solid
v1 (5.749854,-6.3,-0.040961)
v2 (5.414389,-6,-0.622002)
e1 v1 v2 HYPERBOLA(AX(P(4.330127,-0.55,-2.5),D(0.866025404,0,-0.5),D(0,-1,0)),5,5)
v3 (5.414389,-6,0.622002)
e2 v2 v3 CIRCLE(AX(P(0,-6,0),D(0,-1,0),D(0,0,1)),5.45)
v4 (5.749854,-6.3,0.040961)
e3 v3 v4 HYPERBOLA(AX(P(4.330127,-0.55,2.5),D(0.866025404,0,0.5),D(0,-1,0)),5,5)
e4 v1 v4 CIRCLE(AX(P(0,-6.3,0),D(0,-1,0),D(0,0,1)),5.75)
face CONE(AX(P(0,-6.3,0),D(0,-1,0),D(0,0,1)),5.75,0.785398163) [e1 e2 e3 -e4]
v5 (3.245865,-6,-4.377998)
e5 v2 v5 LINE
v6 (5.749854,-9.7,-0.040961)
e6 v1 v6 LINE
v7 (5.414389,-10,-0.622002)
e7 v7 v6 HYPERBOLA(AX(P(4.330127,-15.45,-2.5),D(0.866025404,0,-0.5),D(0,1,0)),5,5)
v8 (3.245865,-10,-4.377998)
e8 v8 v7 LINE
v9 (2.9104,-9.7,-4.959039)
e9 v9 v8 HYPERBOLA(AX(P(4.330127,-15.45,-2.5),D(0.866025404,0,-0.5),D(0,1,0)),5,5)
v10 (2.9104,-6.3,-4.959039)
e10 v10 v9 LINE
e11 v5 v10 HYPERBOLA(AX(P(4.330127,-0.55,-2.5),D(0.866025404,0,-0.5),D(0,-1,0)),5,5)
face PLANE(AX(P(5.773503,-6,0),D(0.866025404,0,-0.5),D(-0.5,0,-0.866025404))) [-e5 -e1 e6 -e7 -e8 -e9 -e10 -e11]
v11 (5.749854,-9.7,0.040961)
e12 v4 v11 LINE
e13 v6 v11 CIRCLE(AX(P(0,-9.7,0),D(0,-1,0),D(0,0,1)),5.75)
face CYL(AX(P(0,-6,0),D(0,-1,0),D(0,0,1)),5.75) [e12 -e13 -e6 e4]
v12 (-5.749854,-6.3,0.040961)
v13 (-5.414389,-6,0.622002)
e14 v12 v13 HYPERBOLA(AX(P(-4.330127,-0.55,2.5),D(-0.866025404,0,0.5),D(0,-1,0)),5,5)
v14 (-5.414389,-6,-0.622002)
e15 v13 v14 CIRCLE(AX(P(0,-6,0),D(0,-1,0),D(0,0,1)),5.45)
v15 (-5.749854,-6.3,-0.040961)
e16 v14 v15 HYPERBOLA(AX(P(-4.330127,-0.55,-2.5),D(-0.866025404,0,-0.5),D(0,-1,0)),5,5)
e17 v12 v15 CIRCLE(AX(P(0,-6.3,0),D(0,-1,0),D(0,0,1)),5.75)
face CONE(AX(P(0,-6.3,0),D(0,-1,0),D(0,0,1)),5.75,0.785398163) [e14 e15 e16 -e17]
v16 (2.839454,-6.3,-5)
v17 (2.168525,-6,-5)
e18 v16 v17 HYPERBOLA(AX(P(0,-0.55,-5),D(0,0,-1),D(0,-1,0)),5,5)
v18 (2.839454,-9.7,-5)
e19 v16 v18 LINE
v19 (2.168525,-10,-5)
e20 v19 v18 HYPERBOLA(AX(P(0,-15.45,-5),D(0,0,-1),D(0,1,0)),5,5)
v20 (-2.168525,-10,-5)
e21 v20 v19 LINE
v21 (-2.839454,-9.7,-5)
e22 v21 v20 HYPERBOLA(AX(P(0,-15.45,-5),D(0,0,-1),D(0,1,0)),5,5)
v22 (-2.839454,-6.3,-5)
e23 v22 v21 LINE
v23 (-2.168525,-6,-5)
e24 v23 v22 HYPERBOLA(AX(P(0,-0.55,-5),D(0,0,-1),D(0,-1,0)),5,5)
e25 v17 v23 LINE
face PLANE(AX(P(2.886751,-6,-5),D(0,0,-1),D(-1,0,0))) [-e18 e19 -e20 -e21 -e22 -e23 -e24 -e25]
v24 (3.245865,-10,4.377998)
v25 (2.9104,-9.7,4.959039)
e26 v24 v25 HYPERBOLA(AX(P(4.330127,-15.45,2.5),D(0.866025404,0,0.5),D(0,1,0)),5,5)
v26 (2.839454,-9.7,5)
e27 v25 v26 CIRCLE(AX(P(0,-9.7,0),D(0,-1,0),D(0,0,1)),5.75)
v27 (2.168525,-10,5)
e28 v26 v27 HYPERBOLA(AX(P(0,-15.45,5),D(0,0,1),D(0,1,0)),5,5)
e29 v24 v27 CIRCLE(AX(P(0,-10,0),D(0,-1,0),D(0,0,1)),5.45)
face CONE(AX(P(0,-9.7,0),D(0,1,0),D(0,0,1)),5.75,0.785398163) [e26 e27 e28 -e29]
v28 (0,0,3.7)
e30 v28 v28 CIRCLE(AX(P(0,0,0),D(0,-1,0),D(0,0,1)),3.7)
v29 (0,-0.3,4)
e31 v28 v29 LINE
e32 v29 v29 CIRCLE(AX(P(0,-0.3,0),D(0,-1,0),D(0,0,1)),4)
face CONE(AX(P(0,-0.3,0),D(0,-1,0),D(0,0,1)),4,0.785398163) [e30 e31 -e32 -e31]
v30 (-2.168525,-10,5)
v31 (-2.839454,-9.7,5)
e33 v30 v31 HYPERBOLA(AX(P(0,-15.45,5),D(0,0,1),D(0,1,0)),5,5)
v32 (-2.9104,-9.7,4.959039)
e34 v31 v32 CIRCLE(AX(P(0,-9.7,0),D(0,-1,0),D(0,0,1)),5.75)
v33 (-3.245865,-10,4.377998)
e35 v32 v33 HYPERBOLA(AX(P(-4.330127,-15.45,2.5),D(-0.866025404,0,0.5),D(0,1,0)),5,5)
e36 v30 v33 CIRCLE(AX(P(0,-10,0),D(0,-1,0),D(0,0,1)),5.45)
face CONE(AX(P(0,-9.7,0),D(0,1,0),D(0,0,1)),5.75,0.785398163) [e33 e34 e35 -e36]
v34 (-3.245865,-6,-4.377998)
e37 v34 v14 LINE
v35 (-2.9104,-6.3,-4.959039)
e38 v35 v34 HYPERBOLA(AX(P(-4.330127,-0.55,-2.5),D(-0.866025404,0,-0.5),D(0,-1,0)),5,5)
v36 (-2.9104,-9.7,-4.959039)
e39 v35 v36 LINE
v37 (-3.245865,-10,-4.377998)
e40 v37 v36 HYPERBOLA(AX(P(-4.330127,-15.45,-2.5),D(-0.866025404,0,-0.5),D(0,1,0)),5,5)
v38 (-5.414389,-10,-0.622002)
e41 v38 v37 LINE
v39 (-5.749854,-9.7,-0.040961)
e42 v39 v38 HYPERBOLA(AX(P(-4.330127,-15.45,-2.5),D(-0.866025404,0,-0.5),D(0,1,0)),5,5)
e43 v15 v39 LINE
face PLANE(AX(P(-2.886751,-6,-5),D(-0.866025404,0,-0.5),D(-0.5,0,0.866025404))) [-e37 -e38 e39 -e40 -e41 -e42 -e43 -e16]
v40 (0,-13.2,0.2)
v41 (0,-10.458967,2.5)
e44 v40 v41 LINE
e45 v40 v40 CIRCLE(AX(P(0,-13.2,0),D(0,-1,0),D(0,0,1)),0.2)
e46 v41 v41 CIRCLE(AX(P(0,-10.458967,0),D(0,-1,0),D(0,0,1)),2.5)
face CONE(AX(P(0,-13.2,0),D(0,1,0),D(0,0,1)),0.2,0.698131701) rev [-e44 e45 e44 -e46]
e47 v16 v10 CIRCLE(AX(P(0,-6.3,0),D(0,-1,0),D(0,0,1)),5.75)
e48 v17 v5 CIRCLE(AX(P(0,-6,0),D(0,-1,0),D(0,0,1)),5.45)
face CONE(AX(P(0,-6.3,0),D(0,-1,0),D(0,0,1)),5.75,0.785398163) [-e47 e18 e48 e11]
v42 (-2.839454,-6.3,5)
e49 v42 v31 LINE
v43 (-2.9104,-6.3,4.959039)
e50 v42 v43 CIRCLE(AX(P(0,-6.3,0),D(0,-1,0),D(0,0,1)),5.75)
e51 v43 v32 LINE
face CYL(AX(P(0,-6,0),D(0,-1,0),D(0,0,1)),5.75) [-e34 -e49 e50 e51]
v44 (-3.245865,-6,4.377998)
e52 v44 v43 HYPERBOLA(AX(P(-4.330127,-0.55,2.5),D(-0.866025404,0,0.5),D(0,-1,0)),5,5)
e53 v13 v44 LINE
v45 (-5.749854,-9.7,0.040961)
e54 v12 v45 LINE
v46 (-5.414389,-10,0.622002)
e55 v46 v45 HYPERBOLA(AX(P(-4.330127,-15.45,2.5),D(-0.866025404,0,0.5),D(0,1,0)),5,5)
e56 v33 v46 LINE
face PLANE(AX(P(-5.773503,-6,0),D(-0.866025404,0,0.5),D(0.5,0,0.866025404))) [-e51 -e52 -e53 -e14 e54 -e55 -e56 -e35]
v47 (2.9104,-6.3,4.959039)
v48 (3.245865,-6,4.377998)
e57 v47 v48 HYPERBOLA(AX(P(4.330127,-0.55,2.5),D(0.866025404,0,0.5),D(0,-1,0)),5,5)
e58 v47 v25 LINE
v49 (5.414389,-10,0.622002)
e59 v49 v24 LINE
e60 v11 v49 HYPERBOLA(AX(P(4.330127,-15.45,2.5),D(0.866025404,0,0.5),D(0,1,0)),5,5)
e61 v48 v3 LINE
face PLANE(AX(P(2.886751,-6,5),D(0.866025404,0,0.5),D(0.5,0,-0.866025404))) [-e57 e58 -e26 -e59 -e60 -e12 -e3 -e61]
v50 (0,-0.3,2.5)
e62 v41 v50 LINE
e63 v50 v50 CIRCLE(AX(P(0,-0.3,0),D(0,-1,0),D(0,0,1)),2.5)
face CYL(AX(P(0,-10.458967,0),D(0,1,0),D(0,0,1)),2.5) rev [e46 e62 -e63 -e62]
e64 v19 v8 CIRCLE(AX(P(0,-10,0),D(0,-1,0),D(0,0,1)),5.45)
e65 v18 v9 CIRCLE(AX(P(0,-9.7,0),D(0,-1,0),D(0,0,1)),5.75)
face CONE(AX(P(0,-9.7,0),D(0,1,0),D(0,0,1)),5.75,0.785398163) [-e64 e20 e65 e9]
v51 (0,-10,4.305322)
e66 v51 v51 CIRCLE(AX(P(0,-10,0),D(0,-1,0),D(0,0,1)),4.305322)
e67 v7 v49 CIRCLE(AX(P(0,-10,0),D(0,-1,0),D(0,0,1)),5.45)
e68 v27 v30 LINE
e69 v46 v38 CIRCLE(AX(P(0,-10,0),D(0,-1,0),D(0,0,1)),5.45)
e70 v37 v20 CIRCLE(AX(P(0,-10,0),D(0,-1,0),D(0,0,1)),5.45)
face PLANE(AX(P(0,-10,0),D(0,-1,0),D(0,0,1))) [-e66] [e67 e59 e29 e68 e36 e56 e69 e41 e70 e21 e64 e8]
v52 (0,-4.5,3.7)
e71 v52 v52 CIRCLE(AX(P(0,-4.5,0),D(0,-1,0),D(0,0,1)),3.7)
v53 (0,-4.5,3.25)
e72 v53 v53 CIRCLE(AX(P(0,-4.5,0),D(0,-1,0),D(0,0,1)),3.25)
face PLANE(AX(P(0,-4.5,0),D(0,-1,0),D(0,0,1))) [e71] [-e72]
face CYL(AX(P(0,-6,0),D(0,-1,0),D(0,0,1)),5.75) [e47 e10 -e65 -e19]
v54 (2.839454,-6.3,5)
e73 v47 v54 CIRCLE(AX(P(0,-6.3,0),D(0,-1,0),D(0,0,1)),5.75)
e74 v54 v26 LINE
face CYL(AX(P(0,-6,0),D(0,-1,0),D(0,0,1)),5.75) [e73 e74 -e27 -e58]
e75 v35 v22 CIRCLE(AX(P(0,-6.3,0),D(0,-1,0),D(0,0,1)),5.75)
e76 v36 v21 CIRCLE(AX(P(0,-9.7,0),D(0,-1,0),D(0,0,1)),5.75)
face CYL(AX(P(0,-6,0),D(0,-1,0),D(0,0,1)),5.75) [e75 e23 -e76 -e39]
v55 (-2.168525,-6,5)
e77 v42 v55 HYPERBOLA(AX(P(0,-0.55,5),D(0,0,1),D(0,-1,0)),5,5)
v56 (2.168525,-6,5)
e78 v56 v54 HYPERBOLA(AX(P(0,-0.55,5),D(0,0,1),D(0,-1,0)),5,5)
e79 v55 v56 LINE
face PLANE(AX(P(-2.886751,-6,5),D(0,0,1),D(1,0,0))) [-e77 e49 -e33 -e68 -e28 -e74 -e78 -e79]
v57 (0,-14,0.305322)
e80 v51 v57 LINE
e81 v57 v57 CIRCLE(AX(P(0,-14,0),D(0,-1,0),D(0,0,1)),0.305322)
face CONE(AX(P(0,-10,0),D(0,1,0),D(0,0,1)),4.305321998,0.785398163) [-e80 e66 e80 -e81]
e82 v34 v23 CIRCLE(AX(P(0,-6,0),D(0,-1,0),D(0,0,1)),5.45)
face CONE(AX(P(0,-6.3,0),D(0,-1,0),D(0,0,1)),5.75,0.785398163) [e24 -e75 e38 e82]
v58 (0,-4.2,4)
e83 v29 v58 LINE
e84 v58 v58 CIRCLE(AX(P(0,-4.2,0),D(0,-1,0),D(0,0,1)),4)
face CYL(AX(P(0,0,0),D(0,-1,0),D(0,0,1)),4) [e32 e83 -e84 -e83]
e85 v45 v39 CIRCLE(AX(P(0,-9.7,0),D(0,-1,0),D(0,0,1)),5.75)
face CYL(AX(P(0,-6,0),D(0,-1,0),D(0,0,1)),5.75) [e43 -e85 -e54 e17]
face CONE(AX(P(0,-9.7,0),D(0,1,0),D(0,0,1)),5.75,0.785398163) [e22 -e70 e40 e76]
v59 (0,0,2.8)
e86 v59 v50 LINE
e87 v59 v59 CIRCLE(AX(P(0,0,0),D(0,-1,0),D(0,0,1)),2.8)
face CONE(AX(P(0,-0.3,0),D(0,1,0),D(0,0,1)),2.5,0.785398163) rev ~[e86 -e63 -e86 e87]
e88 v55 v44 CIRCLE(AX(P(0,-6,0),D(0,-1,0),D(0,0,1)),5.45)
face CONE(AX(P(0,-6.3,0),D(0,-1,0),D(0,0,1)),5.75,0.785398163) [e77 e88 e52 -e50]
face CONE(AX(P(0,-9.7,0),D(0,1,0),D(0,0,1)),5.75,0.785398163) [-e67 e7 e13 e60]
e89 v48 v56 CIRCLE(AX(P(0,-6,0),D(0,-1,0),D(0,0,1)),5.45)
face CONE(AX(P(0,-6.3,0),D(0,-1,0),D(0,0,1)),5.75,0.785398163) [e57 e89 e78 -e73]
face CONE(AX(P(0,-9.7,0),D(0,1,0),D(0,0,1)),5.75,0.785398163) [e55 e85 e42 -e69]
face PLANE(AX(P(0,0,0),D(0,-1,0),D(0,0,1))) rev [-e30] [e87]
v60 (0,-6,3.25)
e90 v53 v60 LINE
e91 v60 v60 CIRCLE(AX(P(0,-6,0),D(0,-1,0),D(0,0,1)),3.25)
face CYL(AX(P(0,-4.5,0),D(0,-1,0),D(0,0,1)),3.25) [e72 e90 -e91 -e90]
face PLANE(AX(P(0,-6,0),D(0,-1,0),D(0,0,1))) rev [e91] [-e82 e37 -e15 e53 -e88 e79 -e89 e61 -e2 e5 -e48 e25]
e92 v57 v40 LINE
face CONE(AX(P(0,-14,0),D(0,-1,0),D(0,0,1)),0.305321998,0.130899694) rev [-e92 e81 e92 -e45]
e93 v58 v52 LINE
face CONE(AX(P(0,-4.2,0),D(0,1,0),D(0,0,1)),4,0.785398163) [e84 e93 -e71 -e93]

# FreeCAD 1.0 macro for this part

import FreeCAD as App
import Part
import Sketcher

V = App.Vector
Q = App.Units.Quantity


def edges_at(feature, points):
    """Names of the edges that pass closest to the given points."""
    edges = feature.Shape.Edges
    near = lambda p: min(range(len(edges)), key=lambda i: edges[i].distToShape(Part.Vertex(*p))[0])
    return sorted({f"Edge{near(p) + 1}" for p in points})


def add_polygon(sketch, points):
    """Adds a closed chain of lines whose ends are joined by coincident constraints."""
    first, n = sketch.GeometryCount, len(points)
    for a, b in zip(points, points[1:] + points[:1]):
        sketch.addGeometry(Part.LineSegment(App.Vector(*a, 0), App.Vector(*b, 0)), False)
    for i in range(n):
        sketch.addConstraint(Sketcher.Constraint("Coincident", first + i, 2, first + (i + 1) % n, 1))

doc = App.newDocument("Part")
body = doc.addObject("PartDesign::Body", "Body")

# Sketch on XY plane
sketch1 = body.newObject("Sketcher::SketchObject", "Sketch")
sketch1.AttachmentSupport = (doc.getObject("XY_Plane"), [""])
sketch1.MapMode = "FlatFace"
add_polygon(sketch1, [(4, 0), (2.5, 0), (2.5, -10.458967), (0.2, -13.2), (0.305322, -14), (4.305322, -10), (5.75, -10), (5.75, -6), (3.25, -6), (3.25, -4.5), (4, -4.5)])  # lines 0-10
sketch1.addConstraint(Sketcher.Constraint("Horizontal", 0))
sketch1.addConstraint(Sketcher.Constraint("Vertical", 1))
sketch1.addConstraint(Sketcher.Constraint("Horizontal", 5))
sketch1.addConstraint(Sketcher.Constraint("Vertical", 6))
sketch1.addConstraint(Sketcher.Constraint("Horizontal", 7))
sketch1.addConstraint(Sketcher.Constraint("Vertical", 8))
sketch1.addConstraint(Sketcher.Constraint("Horizontal", 9))
sketch1.addConstraint(Sketcher.Constraint("Vertical", 10))
sketch1.addConstraint(Sketcher.Constraint("PointOnObject", 0, 2, -1))
sketch1.addConstraint(Sketcher.Constraint("Equal", 0, 8))
sketch1.addConstraint(Sketcher.Constraint("DistanceY", 6, 1, 6, 2, 4.0))
sketch1.addConstraint(Sketcher.Constraint("Angle", 2, Q("-130 deg")))
sketch1.addConstraint(Sketcher.Constraint("Angle", 4, Q("45 deg")))
sketch1.addConstraint(Sketcher.Constraint("DistanceX", 0, 2, 0, 1, 1.5))
sketch1.addConstraint(Sketcher.Constraint("DistanceX", 7, 2, 7, 1, 2.5))
sketch1.addConstraint(Sketcher.Constraint("DistanceY", 10, 1, 10, 2, 4.5))
sketch1.addConstraint(Sketcher.Constraint("DistanceY", 3, 2, -1, 1, 14.0))
sketch1.addConstraint(Sketcher.Constraint("DistanceX", -1, 1, 9, 2, 4.0))
sketch1.addConstraint(Sketcher.Constraint("Angle", 3, Q("-82.5 deg")))
sketch1.addConstraint(Sketcher.Constraint("DistanceX", 9, 1, 9, 2, 0.75))
sketch1.addConstraint(Sketcher.Constraint("DistanceX", -1, 1, 2, 2, 0.2))
sketch1.addConstraint(Sketcher.Constraint("DistanceY", 2, 2, -1, 1, 13.2))
revolution = body.newObject("PartDesign::Revolution", "Revolution")
revolution.Profile = sketch1
revolution.ReferenceAxis = (sketch1, ["V_Axis"])
revolution.Angle = 360
doc.recompute()

chamfer = body.newObject("PartDesign::Chamfer", "Chamfer")
chamfer.Base = (revolution, edges_at(revolution, [
    (0, -10, -5.75),
    (0, -6, -5.75),
    (0, -4.5, -4),
    (0, 0, -4),
    (0, 0, -2.5),
]))
chamfer.Size = 0.3

# Sketch on XZ plane
sketch2 = body.newObject("Sketcher::SketchObject", "Sketch001")
sketch2.AttachmentSupport = (doc.getObject("XZ_Plane"), [""])
sketch2.MapMode = "FlatFace"
sketch2.AttachmentOffset = App.Placement(V(0, 0, 6), App.Rotation())
add_polygon(sketch2, [(-8.896, -8.896), (-8.896, 8.896), (8.896, 8.896), (8.896, -8.896)])  # lines 0-3
add_polygon(sketch2, [(2.886751, -5), (5.773503, 0), (2.886751, 5), (-2.886751, 5), (-5.773503, 0), (-2.886751, -5)])  # lines 4-9
sketch2.addConstraint(Sketcher.Constraint("Vertical", 0))
sketch2.addConstraint(Sketcher.Constraint("Horizontal", 1))
sketch2.addConstraint(Sketcher.Constraint("Vertical", 2))
sketch2.addConstraint(Sketcher.Constraint("Horizontal", 3))
sketch2.addConstraint(Sketcher.Constraint("Horizontal", 6))
sketch2.addConstraint(Sketcher.Constraint("Horizontal", 9))
sketch2.addConstraint(Sketcher.Constraint("Symmetric", 0, 2, 2, 2, -1, 1))
sketch2.addConstraint(Sketcher.Constraint("Symmetric", 4, 2, 7, 2, -1, 1))
sketch2.addConstraint(Sketcher.Constraint("Symmetric", 5, 2, 8, 2, -1, 1))
sketch2.addConstraint(Sketcher.Constraint("PointOnObject", 4, 2, -1))
sketch2.addConstraint(Sketcher.Constraint("Parallel", 4, 7))
sketch2.addConstraint(Sketcher.Constraint("Vertical", 6, 2, 8, 2))
sketch2.addConstraint(Sketcher.Constraint("Equal", 3, 0))
sketch2.addConstraint(Sketcher.Constraint("Angle", 4, Q("60 deg")))
sketch2.addConstraint(Sketcher.Constraint("DistanceY", -1, 1, 5, 2, 5.0))
sketch2.addConstraint(Sketcher.Constraint("DistanceX", 1, 1, 1, 2, 17.792))
sketch2.addConstraint(Sketcher.Constraint("DistanceX", 6, 2, 6, 1, 5.773503))
pocket1 = body.newObject("PartDesign::Pocket", "Pocket")
pocket1.Profile = sketch2
pocket1.Type = "ThroughAll"
pocket1.Reversed = True

doc.recompute()
